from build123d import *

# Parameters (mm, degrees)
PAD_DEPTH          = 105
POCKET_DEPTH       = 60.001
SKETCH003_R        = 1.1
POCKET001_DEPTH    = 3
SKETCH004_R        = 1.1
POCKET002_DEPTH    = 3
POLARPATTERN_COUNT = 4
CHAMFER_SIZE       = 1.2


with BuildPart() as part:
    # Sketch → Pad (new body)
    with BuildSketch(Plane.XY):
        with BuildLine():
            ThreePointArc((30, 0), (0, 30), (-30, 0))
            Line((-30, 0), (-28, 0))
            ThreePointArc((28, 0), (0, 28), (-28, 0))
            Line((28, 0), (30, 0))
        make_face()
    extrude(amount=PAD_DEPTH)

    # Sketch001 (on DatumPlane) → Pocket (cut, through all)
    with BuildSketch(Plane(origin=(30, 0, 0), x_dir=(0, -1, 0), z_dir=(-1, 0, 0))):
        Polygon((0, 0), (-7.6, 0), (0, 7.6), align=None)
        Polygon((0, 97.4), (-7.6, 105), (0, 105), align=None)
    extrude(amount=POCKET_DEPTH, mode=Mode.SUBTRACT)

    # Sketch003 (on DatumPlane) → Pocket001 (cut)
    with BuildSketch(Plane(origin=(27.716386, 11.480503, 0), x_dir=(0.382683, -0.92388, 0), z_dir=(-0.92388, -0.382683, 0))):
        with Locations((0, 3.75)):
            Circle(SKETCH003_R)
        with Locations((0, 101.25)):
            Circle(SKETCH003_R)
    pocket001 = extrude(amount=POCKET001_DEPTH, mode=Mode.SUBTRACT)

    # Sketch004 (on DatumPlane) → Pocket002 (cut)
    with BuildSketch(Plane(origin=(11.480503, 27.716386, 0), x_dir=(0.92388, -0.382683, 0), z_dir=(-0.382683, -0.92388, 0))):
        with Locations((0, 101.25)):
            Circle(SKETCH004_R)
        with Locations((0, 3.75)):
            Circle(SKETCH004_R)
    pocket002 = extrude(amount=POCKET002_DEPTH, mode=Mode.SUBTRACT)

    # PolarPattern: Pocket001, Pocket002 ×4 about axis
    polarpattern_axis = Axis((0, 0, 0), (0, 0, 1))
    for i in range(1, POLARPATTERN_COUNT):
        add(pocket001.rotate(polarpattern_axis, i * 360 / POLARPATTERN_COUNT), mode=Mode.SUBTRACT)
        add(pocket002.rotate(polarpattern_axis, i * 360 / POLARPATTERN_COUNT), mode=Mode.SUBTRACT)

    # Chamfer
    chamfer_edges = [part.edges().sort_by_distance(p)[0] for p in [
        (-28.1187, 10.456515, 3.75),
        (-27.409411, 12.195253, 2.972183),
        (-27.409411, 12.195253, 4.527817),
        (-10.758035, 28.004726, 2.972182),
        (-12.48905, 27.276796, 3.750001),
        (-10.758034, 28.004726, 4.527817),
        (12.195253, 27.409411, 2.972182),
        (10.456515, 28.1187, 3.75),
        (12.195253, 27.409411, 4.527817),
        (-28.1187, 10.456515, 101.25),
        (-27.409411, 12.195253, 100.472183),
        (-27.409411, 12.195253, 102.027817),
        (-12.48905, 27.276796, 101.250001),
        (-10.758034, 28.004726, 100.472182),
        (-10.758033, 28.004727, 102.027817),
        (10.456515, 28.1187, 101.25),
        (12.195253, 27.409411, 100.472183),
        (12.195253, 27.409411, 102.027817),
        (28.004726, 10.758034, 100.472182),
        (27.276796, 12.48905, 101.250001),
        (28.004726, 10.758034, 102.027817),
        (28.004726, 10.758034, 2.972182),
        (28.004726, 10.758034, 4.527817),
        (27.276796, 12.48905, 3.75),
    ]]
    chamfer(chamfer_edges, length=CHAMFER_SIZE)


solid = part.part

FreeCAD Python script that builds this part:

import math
import FreeCAD as App
import Part
import Sketcher
from FreeCAD import Vector


def edges_at(feature, points):
    """Names of the edges that pass closest to the given points."""
    edges = feature.Shape.Edges
    near = lambda p: min(range(len(edges)), key=lambda i: edges[i].distToShape(Part.Vertex(*p))[0])
    return sorted({f"Edge{near(p) + 1}" for p in points})


def add_polygon(sketch, points):
    """Adds a closed chain of lines whose ends are joined by coincident constraints."""
    first, n = sketch.GeometryCount, len(points)
    for a, b in zip(points, points[1:] + points[:1]):
        sketch.addGeometry(Part.LineSegment(App.Vector(*a, 0), App.Vector(*b, 0)), False)
    for i in range(n):
        sketch.addConstraint(Sketcher.Constraint("Coincident", first + i, 2, first + (i + 1) % n, 1))

doc = App.newDocument("Part")
body = doc.addObject("PartDesign::Body", "Body")

sketch1 = body.newObject("Sketcher::SketchObject", "Sketch")
sketch1.AttachmentSupport = (doc.getObject("XY_Plane"), [""])
sketch1.MapMode = "FlatFace"
sketch1.addGeometry([
    Part.ArcOfCircle(Part.Circle(Vector(0, 0, 0), Vector(0, 0, 1), 30), math.radians(0), math.radians(180)),
    Part.LineSegment(Vector(-30, 0, 0), Vector(-28, 0, 0)),
    Part.ArcOfCircle(Part.Circle(Vector(0, 0, 0), Vector(0, 0, 1), 28), math.radians(0), math.radians(180)),
    Part.LineSegment(Vector(28, 0, 0), Vector(30, 0, 0)),
], False)
sketch1.addConstraint([
    Sketcher.Constraint("Coincident", 0, 2, 1, 1),
    Sketcher.Constraint("Coincident", 1, 2, 2, 2),
    Sketcher.Constraint("Coincident", 2, 1, 3, 1),
    Sketcher.Constraint("Coincident", 3, 2, 0, 1),
    Sketcher.Constraint("Horizontal", 1),
    Sketcher.Constraint("Horizontal", 3),
    Sketcher.Constraint("Coincident", 0, 3, -1, 1),
    Sketcher.Constraint("Coincident", 2, 3, -1, 1),
    Sketcher.Constraint("PointOnObject", 0, 2, -1),
    Sketcher.Constraint("PointOnObject", 2, 1, -1),
    Sketcher.Constraint("Radius", 0, 30.0),
    Sketcher.Constraint("Radius", 2, 28.0),
])
pad1 = body.newObject("PartDesign::Pad", "Pad")
pad1.Profile = sketch1
pad1.Length = 105

sketch2 = body.newObject("Sketcher::SketchObject", "Sketch001")
sketch2.AttachmentSupport = (doc.getObject("YZ_Plane"), [""])
sketch2.MapMode = "FlatFace"
sketch2.AttachmentOffset = App.Placement(Vector(0, 0, 30), App.Rotation())
add_polygon(sketch2, [(8, 0), (0, 0), (0, 8)])
add_polygon(sketch2, [(8, 105), (0, 97), (0, 105)])
sketch2.addConstraint([
    Sketcher.Constraint("Horizontal", 0),
    Sketcher.Constraint("Vertical", 1),
    Sketcher.Constraint("Vertical", 4),
    Sketcher.Constraint("Horizontal", 5),
    Sketcher.Constraint("Coincident", 0, 2, -1, 1),
    Sketcher.Constraint("PointOnObject", 3, 2, -2),
    Sketcher.Constraint("Perpendicular", 2, 3),
    Sketcher.Constraint("Vertical", 2, 2, 5, 2),
    Sketcher.Constraint("Equal", 5, 1),
    Sketcher.Constraint("DistanceX", 0, 2, 0, 1, 7.6),
    Sketcher.Constraint("DistanceY", -1, 1, 4, 2, 105.0),
])
pocket1 = body.newObject("PartDesign::Pocket", "Pocket")
pocket1.Profile = sketch2
pocket1.Type = "ThroughAll"

sketch3 = body.newObject("Sketcher::SketchObject", "Sketch002")
sketch3.Placement = App.Placement(Vector(27.716386, 11.480503, 0), App.Rotation(Vector(0.382682898, -0.923879754, 0), Vector(0, 0, 1), Vector(-0.923879754, -0.382682898, 0), "ZXY"))
sketch3.addGeometry([
    Part.Circle(Vector(0, 3.8, 0), Vector(0, 0, 1), 1.1),
    Part.Circle(Vector(0, 101.3, 0), Vector(0, 0, 1), 1.1),
], False)
sketch3.addConstraint([
    Sketcher.Constraint("Equal", 0, 1),
    Sketcher.Constraint("PointOnObject", 0, 3, -2),
    Sketcher.Constraint("PointOnObject", 1, 3, -2),
    Sketcher.Constraint("Diameter", 0, 2.2),
    Sketcher.Constraint("DistanceY", 0, 3, 1, 3, 97.5),
    Sketcher.Constraint("DistanceY", -1, 1, 0, 3, 3.75),
])
pocket2 = body.newObject("PartDesign::Pocket", "Pocket001")
pocket2.Profile = sketch3
pocket2.Length = 3
pocket2.Reversed = True

sketch4 = body.newObject("Sketcher::SketchObject", "Sketch003")
sketch4.Placement = App.Placement(Vector(11.480503, 27.716386, 0), App.Rotation(Vector(0.923879754, -0.382682898, 0), Vector(0, 0, 1), Vector(-0.382682898, -0.923879754, 0), "ZXY"))
sketch4.addGeometry([
    Part.Circle(Vector(0, 101.3, 0), Vector(0, 0, 1), 1.1),
    Part.Circle(Vector(0, 3.8, 0), Vector(0, 0, 1), 1.1),
], False)
sketch4.addConstraint([
    Sketcher.Constraint("Equal", 0, 1),
    Sketcher.Constraint("PointOnObject", 0, 3, -2),
    Sketcher.Constraint("PointOnObject", 1, 3, -2),
    Sketcher.Constraint("Diameter", 0, 2.2),
    Sketcher.Constraint("DistanceY", 1, 3, 0, 3, 97.5),
    Sketcher.Constraint("DistanceY", -1, 1, 0, 3, 101.25),
])
pocket3 = body.newObject("PartDesign::Pocket", "Pocket002")
pocket3.Profile = sketch4
pocket3.Length = 3
pocket3.Reversed = True
doc.recompute()

polarpattern = body.newObject("PartDesign::PolarPattern", "PolarPattern")
polarpattern.Originals = [pocket2, pocket3]
polarpattern.Axis = (doc.getObject("Z_Axis"), [""])
polarpattern.Angle = 360
polarpattern.Occurrences = 4
body.Tip = polarpattern
doc.recompute()

chamfer = body.newObject("PartDesign::Chamfer", "Chamfer")
chamfer.Base = (polarpattern, edges_at(polarpattern, [
    (-28.119, 10.457, 3.75),
    (-28.119, 10.457, 3.75),
    (-28.119, 10.457, 3.75),
    (-12.489, 27.277, 3.75),
    (-12.489, 27.277, 3.75),
    (-12.489, 27.277, 3.75),
    (10.457, 28.119, 3.75),
    (10.457, 28.119, 3.75),
    (10.457, 28.119, 3.75),
    (-28.119, 10.457, 101.25),
    (-28.119, 10.457, 101.25),
    (-28.119, 10.457, 101.25),
    (-12.489, 27.277, 101.25),
    (-12.489, 27.277, 101.25),
    (-12.489, 27.277, 101.25),
    (10.457, 28.119, 101.25),
    (10.457, 28.119, 101.25),
    (10.457, 28.119, 101.25),
    (27.277, 12.489, 101.25),
    (27.277, 12.489, 101.25),
    (27.277, 12.489, 101.25),
    (27.277, 12.489, 3.75),
    (27.277, 12.489, 3.75),
    (27.277, 12.489, 3.75),
]))
chamfer.Size = 1.2

doc.recompute()
